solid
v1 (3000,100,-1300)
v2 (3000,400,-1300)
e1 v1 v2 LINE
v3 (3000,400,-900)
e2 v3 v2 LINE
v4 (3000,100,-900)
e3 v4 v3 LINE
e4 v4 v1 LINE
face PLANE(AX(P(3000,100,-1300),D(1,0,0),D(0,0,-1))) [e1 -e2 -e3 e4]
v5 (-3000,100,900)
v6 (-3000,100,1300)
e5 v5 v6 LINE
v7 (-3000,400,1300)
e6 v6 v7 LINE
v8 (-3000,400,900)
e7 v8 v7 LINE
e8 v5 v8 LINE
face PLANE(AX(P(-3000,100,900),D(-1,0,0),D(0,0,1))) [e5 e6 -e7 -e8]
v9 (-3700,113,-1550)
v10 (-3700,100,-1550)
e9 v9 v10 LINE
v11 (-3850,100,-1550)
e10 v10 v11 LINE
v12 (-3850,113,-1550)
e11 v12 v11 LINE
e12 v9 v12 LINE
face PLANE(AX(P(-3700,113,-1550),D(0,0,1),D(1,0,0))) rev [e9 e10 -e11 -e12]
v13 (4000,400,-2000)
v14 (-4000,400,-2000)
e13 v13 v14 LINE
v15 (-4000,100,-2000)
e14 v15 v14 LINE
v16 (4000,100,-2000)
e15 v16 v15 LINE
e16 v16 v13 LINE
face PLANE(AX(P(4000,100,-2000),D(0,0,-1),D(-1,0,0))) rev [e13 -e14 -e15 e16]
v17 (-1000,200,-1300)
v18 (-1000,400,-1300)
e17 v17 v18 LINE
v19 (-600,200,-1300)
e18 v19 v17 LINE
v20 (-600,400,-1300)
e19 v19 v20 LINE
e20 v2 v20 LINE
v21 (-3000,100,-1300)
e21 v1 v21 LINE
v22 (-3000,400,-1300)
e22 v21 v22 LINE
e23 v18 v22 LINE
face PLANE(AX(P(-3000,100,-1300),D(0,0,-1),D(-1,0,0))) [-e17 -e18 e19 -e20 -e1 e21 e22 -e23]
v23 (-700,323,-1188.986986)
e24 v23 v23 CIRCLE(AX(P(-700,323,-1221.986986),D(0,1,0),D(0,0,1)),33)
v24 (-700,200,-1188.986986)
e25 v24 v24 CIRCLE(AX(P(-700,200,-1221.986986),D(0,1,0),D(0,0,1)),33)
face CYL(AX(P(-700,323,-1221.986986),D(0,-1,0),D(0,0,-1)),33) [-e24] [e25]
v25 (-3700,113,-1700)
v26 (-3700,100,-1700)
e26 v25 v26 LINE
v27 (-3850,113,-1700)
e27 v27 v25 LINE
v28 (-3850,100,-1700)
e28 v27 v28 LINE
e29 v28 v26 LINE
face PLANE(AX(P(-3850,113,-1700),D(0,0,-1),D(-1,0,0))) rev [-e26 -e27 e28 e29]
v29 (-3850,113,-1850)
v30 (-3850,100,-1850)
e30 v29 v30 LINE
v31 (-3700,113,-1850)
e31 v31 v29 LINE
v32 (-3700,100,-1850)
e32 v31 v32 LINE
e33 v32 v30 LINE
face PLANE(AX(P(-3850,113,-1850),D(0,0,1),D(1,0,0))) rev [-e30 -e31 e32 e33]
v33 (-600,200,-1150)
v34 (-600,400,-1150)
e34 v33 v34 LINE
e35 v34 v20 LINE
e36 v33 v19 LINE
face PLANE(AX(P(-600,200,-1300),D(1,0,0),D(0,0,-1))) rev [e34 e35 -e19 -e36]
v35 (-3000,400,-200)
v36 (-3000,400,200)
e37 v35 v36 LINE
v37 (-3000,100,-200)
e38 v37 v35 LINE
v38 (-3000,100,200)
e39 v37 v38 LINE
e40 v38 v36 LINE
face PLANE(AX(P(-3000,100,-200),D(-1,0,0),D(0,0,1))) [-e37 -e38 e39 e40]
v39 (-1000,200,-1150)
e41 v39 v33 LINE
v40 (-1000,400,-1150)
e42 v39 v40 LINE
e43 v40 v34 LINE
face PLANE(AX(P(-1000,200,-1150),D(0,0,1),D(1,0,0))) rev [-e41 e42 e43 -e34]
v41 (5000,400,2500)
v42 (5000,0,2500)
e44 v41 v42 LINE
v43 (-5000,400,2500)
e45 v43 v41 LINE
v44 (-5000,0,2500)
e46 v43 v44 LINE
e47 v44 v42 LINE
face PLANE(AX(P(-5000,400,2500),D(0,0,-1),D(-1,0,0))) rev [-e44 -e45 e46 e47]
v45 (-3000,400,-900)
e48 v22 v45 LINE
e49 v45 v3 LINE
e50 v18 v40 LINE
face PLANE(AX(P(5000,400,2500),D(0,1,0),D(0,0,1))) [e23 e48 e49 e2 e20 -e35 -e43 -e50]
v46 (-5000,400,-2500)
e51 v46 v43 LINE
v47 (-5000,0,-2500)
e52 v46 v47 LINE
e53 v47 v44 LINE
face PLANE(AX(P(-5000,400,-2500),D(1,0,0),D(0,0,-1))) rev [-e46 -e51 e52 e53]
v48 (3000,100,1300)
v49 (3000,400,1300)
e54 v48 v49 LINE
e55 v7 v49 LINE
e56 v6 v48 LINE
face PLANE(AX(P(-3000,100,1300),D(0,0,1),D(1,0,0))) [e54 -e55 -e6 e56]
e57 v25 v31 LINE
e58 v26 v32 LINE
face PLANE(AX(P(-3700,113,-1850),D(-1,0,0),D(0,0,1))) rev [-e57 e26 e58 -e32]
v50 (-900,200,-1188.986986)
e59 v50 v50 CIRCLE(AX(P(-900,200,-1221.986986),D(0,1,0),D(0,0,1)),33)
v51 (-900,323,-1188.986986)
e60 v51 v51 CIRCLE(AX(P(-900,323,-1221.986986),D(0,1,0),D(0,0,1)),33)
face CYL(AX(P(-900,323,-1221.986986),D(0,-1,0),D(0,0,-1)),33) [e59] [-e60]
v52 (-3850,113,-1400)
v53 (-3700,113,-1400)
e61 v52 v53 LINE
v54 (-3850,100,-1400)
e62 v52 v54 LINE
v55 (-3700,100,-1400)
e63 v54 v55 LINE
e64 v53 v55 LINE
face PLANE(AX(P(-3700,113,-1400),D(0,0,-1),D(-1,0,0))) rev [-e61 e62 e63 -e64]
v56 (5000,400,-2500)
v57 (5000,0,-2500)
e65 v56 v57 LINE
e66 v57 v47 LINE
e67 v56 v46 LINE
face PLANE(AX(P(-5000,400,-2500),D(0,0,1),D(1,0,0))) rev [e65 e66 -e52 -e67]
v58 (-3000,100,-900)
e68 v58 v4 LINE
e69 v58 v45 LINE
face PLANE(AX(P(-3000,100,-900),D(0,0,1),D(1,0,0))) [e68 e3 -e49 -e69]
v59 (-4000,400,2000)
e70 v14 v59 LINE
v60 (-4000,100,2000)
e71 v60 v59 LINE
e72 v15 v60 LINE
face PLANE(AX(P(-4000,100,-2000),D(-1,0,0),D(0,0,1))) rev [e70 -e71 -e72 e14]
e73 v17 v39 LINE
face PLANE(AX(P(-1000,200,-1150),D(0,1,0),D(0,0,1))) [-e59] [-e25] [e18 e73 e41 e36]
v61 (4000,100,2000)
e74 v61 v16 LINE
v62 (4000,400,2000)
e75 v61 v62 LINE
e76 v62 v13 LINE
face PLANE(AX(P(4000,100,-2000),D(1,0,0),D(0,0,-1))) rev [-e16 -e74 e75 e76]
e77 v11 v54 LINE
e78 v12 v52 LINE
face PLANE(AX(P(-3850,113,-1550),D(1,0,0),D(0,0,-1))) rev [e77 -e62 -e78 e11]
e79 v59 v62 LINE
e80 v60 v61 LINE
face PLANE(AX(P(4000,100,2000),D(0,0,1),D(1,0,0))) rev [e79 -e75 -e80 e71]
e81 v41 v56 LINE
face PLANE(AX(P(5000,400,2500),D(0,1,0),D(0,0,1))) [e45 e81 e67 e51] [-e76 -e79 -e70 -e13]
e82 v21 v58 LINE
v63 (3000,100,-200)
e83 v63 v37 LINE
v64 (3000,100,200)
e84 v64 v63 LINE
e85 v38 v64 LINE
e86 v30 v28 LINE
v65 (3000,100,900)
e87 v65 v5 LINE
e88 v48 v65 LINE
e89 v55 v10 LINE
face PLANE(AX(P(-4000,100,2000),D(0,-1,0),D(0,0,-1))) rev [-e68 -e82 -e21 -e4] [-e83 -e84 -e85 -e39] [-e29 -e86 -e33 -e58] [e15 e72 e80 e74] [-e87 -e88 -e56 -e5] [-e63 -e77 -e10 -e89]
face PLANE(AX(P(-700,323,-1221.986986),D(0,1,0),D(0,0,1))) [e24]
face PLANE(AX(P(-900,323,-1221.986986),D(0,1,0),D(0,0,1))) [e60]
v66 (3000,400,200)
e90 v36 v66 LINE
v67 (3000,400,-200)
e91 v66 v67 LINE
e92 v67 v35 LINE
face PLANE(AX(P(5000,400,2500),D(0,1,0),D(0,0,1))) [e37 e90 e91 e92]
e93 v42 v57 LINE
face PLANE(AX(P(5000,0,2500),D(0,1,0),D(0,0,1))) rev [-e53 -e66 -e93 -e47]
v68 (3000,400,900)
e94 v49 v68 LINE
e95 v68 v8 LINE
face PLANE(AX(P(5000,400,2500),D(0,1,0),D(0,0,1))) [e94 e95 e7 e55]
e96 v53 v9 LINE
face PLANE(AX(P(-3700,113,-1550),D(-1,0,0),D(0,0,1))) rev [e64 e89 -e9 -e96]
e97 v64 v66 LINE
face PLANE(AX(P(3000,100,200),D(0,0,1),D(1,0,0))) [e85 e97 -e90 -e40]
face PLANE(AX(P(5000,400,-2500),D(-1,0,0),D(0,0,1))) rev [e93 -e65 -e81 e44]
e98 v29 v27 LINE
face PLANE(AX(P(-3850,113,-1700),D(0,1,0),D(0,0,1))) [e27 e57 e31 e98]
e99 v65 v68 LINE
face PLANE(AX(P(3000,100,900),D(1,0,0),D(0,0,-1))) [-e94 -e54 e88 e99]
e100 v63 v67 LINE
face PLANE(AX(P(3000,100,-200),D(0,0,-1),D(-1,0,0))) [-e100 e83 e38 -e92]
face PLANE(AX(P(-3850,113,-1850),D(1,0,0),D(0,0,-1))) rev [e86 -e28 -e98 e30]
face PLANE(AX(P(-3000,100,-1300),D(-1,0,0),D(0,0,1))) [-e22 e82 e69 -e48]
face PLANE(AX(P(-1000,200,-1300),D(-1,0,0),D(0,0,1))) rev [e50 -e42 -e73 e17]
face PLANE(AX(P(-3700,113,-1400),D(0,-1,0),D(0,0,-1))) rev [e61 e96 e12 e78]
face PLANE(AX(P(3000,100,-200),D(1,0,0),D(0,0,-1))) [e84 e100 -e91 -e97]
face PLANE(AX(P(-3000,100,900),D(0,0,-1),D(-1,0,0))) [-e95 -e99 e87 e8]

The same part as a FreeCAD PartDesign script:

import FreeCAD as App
import Part
import Sketcher

V = App.Vector

doc = App.newDocument("Part")
body = doc.addObject("PartDesign::Body", "Body")

sketch1 = doc.addObject("Sketcher::SketchObject", "Sketch")
body.addObject(sketch1)
sketch1.AttachmentSupport = (doc.XZ_Plane, [""])
sketch1.MapMode = "FlatFace"
sketch1.addGeometry(Part.LineSegment(V(-5000, -2500, 0), V(-5000, 2500, 0)), False)
sketch1.addGeometry(Part.LineSegment(V(-5000, 2500, 0), V(5000, 2500, 0)), False)
sketch1.addGeometry(Part.LineSegment(V(5000, 2500, 0), V(5000, -2500, 0)), False)
sketch1.addGeometry(Part.LineSegment(V(5000, -2500, 0), V(-5000, -2500, 0)), False)
sketch1.addConstraint(Sketcher.Constraint("Coincident", 0, 2, 1, 1))
sketch1.addConstraint(Sketcher.Constraint("Coincident", 1, 2, 2, 1))
sketch1.addConstraint(Sketcher.Constraint("Coincident", 2, 2, 3, 1))
sketch1.addConstraint(Sketcher.Constraint("Coincident", 3, 2, 0, 1))
sketch1.addConstraint(Sketcher.Constraint("Vertical", 0))
sketch1.addConstraint(Sketcher.Constraint("Horizontal", 1))
sketch1.addConstraint(Sketcher.Constraint("Vertical", 2))
sketch1.addConstraint(Sketcher.Constraint("Horizontal", 3))
sketch1.addConstraint(Sketcher.Constraint("Symmetric", 0, 2, 2, 2, -1, 1))
sketch1.addConstraint(Sketcher.Constraint("DistanceX", 1, 1, 1, 2, 10000.0))
sketch1.addConstraint(Sketcher.Constraint("DistanceY", 0, 1, 0, 2, 5000.0))
pad1 = doc.addObject("PartDesign::Pad", "Pad")
body.addObject(pad1)
pad1.Profile = sketch1
pad1.Length = 400
pad1.Reversed = True

sketch2 = doc.addObject("Sketcher::SketchObject", "Sketch001")
body.addObject(sketch2)
sketch2.AttachmentSupport = (doc.XZ_Plane, [""])
sketch2.MapMode = "FlatFace"
sketch2.AttachmentOffset = App.Placement(V(0, 0, -400), App.Rotation())
sketch2.addGeometry(Part.LineSegment(V(-4000, -2000, 0), V(-4000, 2000, 0)), False)
sketch2.addGeometry(Part.LineSegment(V(-4000, 2000, 0), V(4000, 2000, 0)), False)
sketch2.addGeometry(Part.LineSegment(V(4000, 2000, 0), V(4000, -2000, 0)), False)
sketch2.addGeometry(Part.LineSegment(V(4000, -2000, 0), V(-4000, -2000, 0)), False)
sketch2.addGeometry(Part.LineSegment(V(3000, 1300, 0), V(-3000, 1300, 0)), False)
sketch2.addGeometry(Part.LineSegment(V(-3000, 1300, 0), V(-3000, 900, 0)), False)
sketch2.addGeometry(Part.LineSegment(V(-3000, 900, 0), V(3000, 900, 0)), False)
sketch2.addGeometry(Part.LineSegment(V(3000, 900, 0), V(3000, 1300, 0)), False)
sketch2.addGeometry(Part.LineSegment(V(3000, 200, 0), V(-3000, 200, 0)), False)
sketch2.addGeometry(Part.LineSegment(V(-3000, 200, 0), V(-3000, -200, 0)), False)
sketch2.addGeometry(Part.LineSegment(V(-3000, -200, 0), V(3000, -200, 0)), False)
sketch2.addGeometry(Part.LineSegment(V(3000, -200, 0), V(3000, 200, 0)), False)
sketch2.addGeometry(Part.LineSegment(V(3000, -900, 0), V(-3000, -900, 0)), False)
sketch2.addGeometry(Part.LineSegment(V(-3000, -900, 0), V(-3000, -1300, 0)), False)
sketch2.addGeometry(Part.LineSegment(V(-3000, -1300, 0), V(3000, -1300, 0)), False)
sketch2.addGeometry(Part.LineSegment(V(3000, -1300, 0), V(3000, -900, 0)), False)
sketch2.addConstraint(Sketcher.Constraint("Coincident", 0, 2, 1, 1))
sketch2.addConstraint(Sketcher.Constraint("Coincident", 1, 2, 2, 1))
sketch2.addConstraint(Sketcher.Constraint("Coincident", 2, 2, 3, 1))
sketch2.addConstraint(Sketcher.Constraint("Coincident", 3, 2, 0, 1))
sketch2.addConstraint(Sketcher.Constraint("Coincident", 4, 2, 5, 1))
sketch2.addConstraint(Sketcher.Constraint("Coincident", 5, 2, 6, 1))
sketch2.addConstraint(Sketcher.Constraint("Coincident", 6, 2, 7, 1))
sketch2.addConstraint(Sketcher.Constraint("Coincident", 7, 2, 4, 1))
sketch2.addConstraint(Sketcher.Constraint("Coincident", 8, 2, 9, 1))
sketch2.addConstraint(Sketcher.Constraint("Coincident", 9, 2, 10, 1))
sketch2.addConstraint(Sketcher.Constraint("Coincident", 10, 2, 11, 1))
sketch2.addConstraint(Sketcher.Constraint("Coincident", 11, 2, 8, 1))
sketch2.addConstraint(Sketcher.Constraint("Coincident", 12, 2, 13, 1))
sketch2.addConstraint(Sketcher.Constraint("Coincident", 13, 2, 14, 1))
sketch2.addConstraint(Sketcher.Constraint("Coincident", 14, 2, 15, 1))
sketch2.addConstraint(Sketcher.Constraint("Coincident", 15, 2, 12, 1))
sketch2.addConstraint(Sketcher.Constraint("Vertical", 0))
sketch2.addConstraint(Sketcher.Constraint("Horizontal", 1))
sketch2.addConstraint(Sketcher.Constraint("Vertical", 2))
sketch2.addConstraint(Sketcher.Constraint("Horizontal", 3))
sketch2.addConstraint(Sketcher.Constraint("Horizontal", 4))
sketch2.addConstraint(Sketcher.Constraint("Vertical", 5))
sketch2.addConstraint(Sketcher.Constraint("Horizontal", 6))
sketch2.addConstraint(Sketcher.Constraint("Vertical", 7))
sketch2.addConstraint(Sketcher.Constraint("Horizontal", 8))
sketch2.addConstraint(Sketcher.Constraint("Vertical", 9))
sketch2.addConstraint(Sketcher.Constraint("Horizontal", 10))
sketch2.addConstraint(Sketcher.Constraint("Vertical", 11))
sketch2.addConstraint(Sketcher.Constraint("Horizontal", 12))
sketch2.addConstraint(Sketcher.Constraint("Vertical", 13))
sketch2.addConstraint(Sketcher.Constraint("Horizontal", 14))
sketch2.addConstraint(Sketcher.Constraint("Vertical", 15))
sketch2.addConstraint(Sketcher.Constraint("Symmetric", 0, 2, 2, 2, -1, 1))
sketch2.addConstraint(Sketcher.Constraint("Symmetric", 8, 2, 10, 2, -1, 1))
sketch2.addConstraint(Sketcher.Constraint("Symmetric", 6, 2, 12, 2, -1, 1))
sketch2.addConstraint(Sketcher.Constraint("Symmetric", 4, 2, 14, 2, -1, 1))
sketch2.addConstraint(Sketcher.Constraint("Vertical", 5, 2, 8, 2))
sketch2.addConstraint(Sketcher.Constraint("Vertical", 7, 2, 10, 2))
sketch2.addConstraint(Sketcher.Constraint("Equal", 7, 9))
sketch2.addConstraint(Sketcher.Constraint("DistanceX", 1, 1, 1, 2, 8000.0))
sketch2.addConstraint(Sketcher.Constraint("DistanceX", 4, 2, 4, 1, 6000.0))
sketch2.addConstraint(Sketcher.Constraint("DistanceY", 0, 1, 0, 2, 4000.0))
sketch2.addConstraint(Sketcher.Constraint("DistanceY", 5, 2, 5, 1, 400.0))
sketch2.addConstraint(Sketcher.Constraint("DistanceY", -1, 1, 4, 2, 1300.0))
pocket1 = doc.addObject("PartDesign::Pocket", "Pocket")
body.addObject(pocket1)
pocket1.Profile = sketch2
pocket1.Length = 300
pocket1.Reversed = True

sketch3 = doc.addObject("Sketcher::SketchObject", "Sketch002")
body.addObject(sketch3)
sketch3.AttachmentSupport = (doc.XZ_Plane, [""])
sketch3.MapMode = "FlatFace"
sketch3.AttachmentOffset = App.Placement(V(0, 0, -100), App.Rotation())
sketch3.addGeometry(Part.LineSegment(V(-3850, -1850, 0), V(-3850, -1700, 0)), False)
sketch3.addGeometry(Part.LineSegment(V(-3850, -1700, 0), V(-3700, -1700, 0)), False)
sketch3.addGeometry(Part.LineSegment(V(-3700, -1700, 0), V(-3700, -1850, 0)), False)
sketch3.addGeometry(Part.LineSegment(V(-3700, -1850, 0), V(-3850, -1850, 0)), False)
sketch3.addGeometry(Part.LineSegment(V(-3850, -1550, 0), V(-3850, -1400, 0)), False)
sketch3.addGeometry(Part.LineSegment(V(-3850, -1400, 0), V(-3700, -1400, 0)), False)
sketch3.addGeometry(Part.LineSegment(V(-3700, -1400, 0), V(-3700, -1550, 0)), False)
sketch3.addGeometry(Part.LineSegment(V(-3700, -1550, 0), V(-3850, -1550, 0)), False)
sketch3.addConstraint(Sketcher.Constraint("Coincident", 0, 2, 1, 1))
sketch3.addConstraint(Sketcher.Constraint("Coincident", 1, 2, 2, 1))
sketch3.addConstraint(Sketcher.Constraint("Coincident", 2, 2, 3, 1))
sketch3.addConstraint(Sketcher.Constraint("Coincident", 3, 2, 0, 1))
sketch3.addConstraint(Sketcher.Constraint("Coincident", 4, 2, 5, 1))
sketch3.addConstraint(Sketcher.Constraint("Coincident", 5, 2, 6, 1))
sketch3.addConstraint(Sketcher.Constraint("Coincident", 6, 2, 7, 1))
sketch3.addConstraint(Sketcher.Constraint("Coincident", 7, 2, 4, 1))
sketch3.addConstraint(Sketcher.Constraint("Vertical", 0))
sketch3.addConstraint(Sketcher.Constraint("Horizontal", 1))
sketch3.addConstraint(Sketcher.Constraint("Vertical", 2))
sketch3.addConstraint(Sketcher.Constraint("Horizontal", 3))
sketch3.addConstraint(Sketcher.Constraint("Vertical", 4))
sketch3.addConstraint(Sketcher.Constraint("Horizontal", 5))
sketch3.addConstraint(Sketcher.Constraint("Vertical", 6))
sketch3.addConstraint(Sketcher.Constraint("Horizontal", 7))
sketch3.addConstraint(Sketcher.Constraint("Vertical", 3, 2, 4, 2))
sketch3.addConstraint(Sketcher.Constraint("Vertical", 2, 2, 5, 2))
sketch3.addConstraint(Sketcher.Constraint("Equal", 7, 0))
sketch3.addConstraint(Sketcher.Constraint("Equal", 2, 4))
sketch3.addConstraint(Sketcher.Constraint("DistanceX", 1, 1, 1, 2, 150.0))
sketch3.addConstraint(Sketcher.Constraint("DistanceX", 0, 2, -1, 1, 3850.0))
sketch3.addConstraint(Sketcher.Constraint("DistanceY", 0, 2, -1, 1, 1700.0))
sketch3.addConstraint(Sketcher.Constraint("DistanceY", 4, 2, -1, 1, 1400.0))
pad2 = doc.addObject("PartDesign::Pad", "Pad001")
body.addObject(pad2)
pad2.Profile = sketch3
pad2.Length = 13
pad2.Reversed = True

sketch4 = doc.addObject("Sketcher::SketchObject", "Sketch003")
body.addObject(sketch4)
sketch4.AttachmentSupport = (doc.XZ_Plane, [""])
sketch4.MapMode = "FlatFace"
sketch4.AttachmentOffset = App.Placement(V(0, 0, -400), App.Rotation())
sketch4.addGeometry(Part.LineSegment(V(-1000, -1300, 0), V(-1000, -1150, 0)), False)
sketch4.addGeometry(Part.LineSegment(V(-1000, -1150, 0), V(-600, -1150, 0)), False)
sketch4.addGeometry(Part.LineSegment(V(-600, -1150, 0), V(-600, -1300, 0)), False)
sketch4.addGeometry(Part.LineSegment(V(-600, -1300, 0), V(-1000, -1300, 0)), False)
sketch4.addConstraint(Sketcher.Constraint("Coincident", 0, 2, 1, 1))
sketch4.addConstraint(Sketcher.Constraint("Coincident", 1, 2, 2, 1))
sketch4.addConstraint(Sketcher.Constraint("Coincident", 2, 2, 3, 1))
sketch4.addConstraint(Sketcher.Constraint("Coincident", 3, 2, 0, 1))
sketch4.addConstraint(Sketcher.Constraint("Vertical", 0))
sketch4.addConstraint(Sketcher.Constraint("Horizontal", 1))
sketch4.addConstraint(Sketcher.Constraint("Vertical", 2))
sketch4.addConstraint(Sketcher.Constraint("Horizontal", 3))
sketch4.addConstraint(Sketcher.Constraint("DistanceX", 1, 1, 1, 2, 400.0))
sketch4.addConstraint(Sketcher.Constraint("DistanceY", 0, 1, 0, 2, 150.0))
sketch4.addConstraint(Sketcher.Constraint("DistanceX", 0, 2, -1, 1, 1000.0))
sketch4.addConstraint(Sketcher.Constraint("DistanceY", 0, 2, -1, 1, 1150.0))
pocket2 = doc.addObject("PartDesign::Pocket", "Pocket001")
body.addObject(pocket2)
pocket2.Profile = sketch4
pocket2.Length = 200
pocket2.Reversed = True

sketch5 = doc.addObject("Sketcher::SketchObject", "Sketch004")
body.addObject(sketch5)
sketch5.AttachmentSupport = (doc.XZ_Plane, [""])
sketch5.MapMode = "FlatFace"
sketch5.AttachmentOffset = App.Placement(V(0, 0, -200), App.Rotation())
sketch5.addGeometry(Part.Circle(V(-900, -1222, 0), V(0, 0, 1), 33), False)
sketch5.addGeometry(Part.Circle(V(-700, -1222, 0), V(0, 0, 1), 33), False)
sketch5.addConstraint(Sketcher.Constraint("Equal", 0, 1))
sketch5.addConstraint(Sketcher.Constraint("Horizontal", 0, 3, 1, 3))
sketch5.addConstraint(Sketcher.Constraint("Diameter", 0, 66.0))
sketch5.addConstraint(Sketcher.Constraint("DistanceX", 0, 3, -1, 1, 900.0))
sketch5.addConstraint(Sketcher.Constraint("DistanceX", 1, 3, -1, 1, 700.0))
sketch5.addConstraint(Sketcher.Constraint("DistanceY", 0, 3, -1, 1, 1221.986986))
pad3 = doc.addObject("PartDesign::Pad", "Pad002")
body.addObject(pad3)
pad3.Profile = sketch5
pad3.Length = 123
pad3.Reversed = True

doc.recompute()
